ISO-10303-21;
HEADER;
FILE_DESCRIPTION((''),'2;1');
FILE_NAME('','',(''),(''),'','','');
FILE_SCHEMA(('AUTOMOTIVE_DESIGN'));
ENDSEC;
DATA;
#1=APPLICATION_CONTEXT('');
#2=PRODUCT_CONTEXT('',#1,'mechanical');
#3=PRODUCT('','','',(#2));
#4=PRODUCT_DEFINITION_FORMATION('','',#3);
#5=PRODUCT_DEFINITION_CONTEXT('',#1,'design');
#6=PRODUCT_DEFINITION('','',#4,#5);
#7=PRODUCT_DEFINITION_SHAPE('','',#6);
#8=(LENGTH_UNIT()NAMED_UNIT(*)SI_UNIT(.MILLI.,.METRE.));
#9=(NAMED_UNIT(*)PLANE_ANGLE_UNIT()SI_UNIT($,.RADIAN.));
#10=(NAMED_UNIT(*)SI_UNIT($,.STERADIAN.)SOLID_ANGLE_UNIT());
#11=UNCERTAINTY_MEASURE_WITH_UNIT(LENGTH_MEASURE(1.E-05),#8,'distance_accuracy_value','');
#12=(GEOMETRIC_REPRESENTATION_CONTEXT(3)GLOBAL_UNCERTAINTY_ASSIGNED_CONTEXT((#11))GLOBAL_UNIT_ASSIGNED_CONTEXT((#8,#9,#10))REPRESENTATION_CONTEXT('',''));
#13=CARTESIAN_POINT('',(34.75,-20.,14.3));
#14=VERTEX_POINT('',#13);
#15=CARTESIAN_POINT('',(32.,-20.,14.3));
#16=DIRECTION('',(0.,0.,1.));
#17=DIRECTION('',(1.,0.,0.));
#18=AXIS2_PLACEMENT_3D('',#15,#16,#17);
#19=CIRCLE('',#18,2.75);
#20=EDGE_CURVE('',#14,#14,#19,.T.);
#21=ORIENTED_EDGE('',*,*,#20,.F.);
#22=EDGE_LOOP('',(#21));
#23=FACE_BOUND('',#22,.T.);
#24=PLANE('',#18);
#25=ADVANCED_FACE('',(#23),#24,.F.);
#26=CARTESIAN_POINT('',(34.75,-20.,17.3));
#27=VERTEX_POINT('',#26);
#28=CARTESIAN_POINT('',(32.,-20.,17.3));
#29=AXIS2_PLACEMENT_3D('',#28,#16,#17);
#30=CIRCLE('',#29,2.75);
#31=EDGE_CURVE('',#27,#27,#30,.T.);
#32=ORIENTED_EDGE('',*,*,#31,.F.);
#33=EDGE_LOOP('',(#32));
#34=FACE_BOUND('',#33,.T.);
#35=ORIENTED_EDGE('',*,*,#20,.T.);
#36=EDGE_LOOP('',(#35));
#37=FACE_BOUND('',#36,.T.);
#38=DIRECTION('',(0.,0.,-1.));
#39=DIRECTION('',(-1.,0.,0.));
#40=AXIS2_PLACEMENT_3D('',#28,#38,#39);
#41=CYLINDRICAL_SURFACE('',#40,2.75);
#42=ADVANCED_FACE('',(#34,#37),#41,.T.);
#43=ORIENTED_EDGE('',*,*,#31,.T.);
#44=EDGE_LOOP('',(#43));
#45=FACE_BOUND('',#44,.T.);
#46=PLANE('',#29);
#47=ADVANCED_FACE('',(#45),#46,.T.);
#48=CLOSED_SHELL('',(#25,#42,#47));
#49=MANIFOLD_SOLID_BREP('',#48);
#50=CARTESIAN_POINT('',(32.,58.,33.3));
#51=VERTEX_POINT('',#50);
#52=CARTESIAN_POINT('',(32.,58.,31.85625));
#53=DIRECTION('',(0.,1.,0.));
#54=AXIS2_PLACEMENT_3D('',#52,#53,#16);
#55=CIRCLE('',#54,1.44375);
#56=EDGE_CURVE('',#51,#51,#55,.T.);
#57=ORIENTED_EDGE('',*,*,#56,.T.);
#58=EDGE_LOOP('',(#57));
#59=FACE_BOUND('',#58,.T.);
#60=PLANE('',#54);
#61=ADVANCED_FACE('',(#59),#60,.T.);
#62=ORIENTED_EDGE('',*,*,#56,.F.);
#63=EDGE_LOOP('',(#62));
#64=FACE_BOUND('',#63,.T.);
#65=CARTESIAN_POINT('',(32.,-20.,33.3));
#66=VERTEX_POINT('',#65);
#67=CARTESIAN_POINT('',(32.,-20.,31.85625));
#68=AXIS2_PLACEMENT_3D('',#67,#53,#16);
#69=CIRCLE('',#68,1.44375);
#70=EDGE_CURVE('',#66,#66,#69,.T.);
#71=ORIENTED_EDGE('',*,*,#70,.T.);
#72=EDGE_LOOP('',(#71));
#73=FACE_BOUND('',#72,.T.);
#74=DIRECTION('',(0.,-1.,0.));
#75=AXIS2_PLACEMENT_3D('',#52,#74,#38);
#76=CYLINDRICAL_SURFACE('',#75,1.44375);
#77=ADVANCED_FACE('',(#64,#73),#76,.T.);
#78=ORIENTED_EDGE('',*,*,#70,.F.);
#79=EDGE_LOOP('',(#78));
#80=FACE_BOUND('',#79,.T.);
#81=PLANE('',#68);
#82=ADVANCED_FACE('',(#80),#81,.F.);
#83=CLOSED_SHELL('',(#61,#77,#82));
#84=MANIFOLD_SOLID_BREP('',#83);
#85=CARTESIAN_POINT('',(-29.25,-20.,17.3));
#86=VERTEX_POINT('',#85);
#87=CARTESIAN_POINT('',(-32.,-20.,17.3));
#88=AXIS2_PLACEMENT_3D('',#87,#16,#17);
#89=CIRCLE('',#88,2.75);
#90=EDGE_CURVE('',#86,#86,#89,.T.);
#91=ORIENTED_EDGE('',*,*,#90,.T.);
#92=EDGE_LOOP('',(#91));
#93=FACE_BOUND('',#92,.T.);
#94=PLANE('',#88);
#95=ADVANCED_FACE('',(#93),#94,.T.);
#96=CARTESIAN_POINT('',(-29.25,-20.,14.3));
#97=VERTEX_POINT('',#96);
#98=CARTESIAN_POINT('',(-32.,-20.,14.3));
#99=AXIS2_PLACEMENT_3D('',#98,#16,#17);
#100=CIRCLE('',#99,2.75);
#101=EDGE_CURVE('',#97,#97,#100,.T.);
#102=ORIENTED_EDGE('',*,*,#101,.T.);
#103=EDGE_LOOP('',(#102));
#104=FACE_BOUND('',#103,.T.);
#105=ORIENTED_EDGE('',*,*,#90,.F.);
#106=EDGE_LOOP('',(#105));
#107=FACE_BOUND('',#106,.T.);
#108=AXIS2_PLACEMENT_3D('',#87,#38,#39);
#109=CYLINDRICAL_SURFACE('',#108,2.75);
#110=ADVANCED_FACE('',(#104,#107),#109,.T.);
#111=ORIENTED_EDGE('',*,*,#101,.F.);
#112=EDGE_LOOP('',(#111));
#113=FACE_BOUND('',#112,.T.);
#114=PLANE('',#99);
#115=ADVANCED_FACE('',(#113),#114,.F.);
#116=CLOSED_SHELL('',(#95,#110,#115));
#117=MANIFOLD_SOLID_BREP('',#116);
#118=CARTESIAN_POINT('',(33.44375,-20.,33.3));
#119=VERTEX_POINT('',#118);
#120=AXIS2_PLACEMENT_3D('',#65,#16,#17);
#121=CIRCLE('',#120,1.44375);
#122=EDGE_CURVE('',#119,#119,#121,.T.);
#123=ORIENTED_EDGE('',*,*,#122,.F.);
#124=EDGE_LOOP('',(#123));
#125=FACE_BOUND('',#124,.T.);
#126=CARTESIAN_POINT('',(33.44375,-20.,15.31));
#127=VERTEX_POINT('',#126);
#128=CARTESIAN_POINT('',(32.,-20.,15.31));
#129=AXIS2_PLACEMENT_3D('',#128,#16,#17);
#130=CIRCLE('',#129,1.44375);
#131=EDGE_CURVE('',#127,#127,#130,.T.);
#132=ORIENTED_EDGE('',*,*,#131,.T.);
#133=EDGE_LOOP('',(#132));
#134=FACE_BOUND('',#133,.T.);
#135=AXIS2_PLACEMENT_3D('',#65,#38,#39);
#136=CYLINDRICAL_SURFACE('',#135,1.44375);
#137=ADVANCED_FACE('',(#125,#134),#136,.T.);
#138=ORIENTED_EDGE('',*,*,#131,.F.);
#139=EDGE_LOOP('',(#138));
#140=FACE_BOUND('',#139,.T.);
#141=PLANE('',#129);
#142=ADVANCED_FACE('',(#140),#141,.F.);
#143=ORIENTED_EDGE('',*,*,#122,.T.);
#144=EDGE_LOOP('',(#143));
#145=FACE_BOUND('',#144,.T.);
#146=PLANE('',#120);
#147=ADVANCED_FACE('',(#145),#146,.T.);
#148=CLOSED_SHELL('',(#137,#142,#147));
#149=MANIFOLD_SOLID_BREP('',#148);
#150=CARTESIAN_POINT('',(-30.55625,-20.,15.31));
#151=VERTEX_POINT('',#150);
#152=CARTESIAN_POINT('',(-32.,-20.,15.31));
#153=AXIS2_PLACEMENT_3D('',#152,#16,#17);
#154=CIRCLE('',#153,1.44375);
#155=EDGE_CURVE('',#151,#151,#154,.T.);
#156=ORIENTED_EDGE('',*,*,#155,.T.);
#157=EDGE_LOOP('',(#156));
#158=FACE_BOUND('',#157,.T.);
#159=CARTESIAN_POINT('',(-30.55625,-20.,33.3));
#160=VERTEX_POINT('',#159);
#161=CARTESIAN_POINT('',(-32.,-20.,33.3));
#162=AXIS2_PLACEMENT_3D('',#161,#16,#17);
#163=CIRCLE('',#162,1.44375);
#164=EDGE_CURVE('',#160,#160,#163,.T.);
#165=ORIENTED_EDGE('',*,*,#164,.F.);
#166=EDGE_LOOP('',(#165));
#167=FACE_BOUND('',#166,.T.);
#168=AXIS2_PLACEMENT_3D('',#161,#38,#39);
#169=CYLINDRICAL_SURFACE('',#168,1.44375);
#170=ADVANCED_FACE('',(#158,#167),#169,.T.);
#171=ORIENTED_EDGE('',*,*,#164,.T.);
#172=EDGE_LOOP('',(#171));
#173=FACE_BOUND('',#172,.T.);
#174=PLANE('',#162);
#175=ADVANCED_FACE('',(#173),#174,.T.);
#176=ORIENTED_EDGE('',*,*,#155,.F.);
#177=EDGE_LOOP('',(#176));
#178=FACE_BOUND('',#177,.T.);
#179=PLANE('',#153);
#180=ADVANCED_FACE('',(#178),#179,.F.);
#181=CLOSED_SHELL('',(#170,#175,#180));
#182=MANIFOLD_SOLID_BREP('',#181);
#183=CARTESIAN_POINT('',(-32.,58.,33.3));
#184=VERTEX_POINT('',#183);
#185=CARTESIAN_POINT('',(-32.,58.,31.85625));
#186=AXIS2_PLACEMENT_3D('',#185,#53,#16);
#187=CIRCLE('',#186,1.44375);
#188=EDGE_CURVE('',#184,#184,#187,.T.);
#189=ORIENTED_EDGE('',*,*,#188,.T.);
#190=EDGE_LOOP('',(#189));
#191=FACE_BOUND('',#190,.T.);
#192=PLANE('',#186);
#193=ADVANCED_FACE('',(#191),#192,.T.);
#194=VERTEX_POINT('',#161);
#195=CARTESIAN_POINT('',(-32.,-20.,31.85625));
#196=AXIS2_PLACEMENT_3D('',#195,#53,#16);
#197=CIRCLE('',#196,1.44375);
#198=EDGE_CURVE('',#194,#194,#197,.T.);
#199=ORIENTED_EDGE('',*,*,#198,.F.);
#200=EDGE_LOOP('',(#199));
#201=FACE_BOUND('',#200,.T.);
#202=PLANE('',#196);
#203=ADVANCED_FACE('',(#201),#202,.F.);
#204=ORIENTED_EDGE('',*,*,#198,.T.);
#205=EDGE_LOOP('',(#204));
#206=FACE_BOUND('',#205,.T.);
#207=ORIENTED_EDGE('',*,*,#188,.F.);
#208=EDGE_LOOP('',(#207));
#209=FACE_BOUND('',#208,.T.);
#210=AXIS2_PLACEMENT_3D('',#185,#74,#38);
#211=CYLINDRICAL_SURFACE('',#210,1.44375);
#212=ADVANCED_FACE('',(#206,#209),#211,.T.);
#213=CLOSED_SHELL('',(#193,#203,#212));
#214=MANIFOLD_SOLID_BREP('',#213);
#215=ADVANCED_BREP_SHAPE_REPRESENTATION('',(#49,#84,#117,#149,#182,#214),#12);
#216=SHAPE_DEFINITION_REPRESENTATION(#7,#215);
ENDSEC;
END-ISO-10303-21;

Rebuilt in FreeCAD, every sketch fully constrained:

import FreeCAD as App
import Part
import Sketcher
Q = App.Units.Quantity

doc = App.newDocument("Part")
body = doc.addObject("PartDesign::Body", "Body")

# Sketch on XY plane
sketch1 = doc.addObject("Sketcher::SketchObject", "Sketch")
body.addObject(sketch1)
sketch1.AttachmentSupport = (doc.XY_Plane, [""])
sketch1.MapMode = "FlatFace"
sketch1.AttachmentOffset = App.Placement(App.Vector(0, 0, 14.3), App.Rotation())
sketch1.addGeometry(Part.Circle(App.Vector(-32, -20, 0), App.Vector(0, 0, 1), 2.8), False)
sketch1.addConstraint([
    Sketcher.Constraint("Diameter", 0, Q("5.5 mm")),
    Sketcher.Constraint("DistanceX", 0, 3, -1, 1, Q("32 mm")),
    Sketcher.Constraint("DistanceY", 0, 3, -1, 1, Q("20 mm")),
])
pad1 = doc.addObject("PartDesign::Pad", "Pad")
body.addObject(pad1)
pad1.Profile = sketch1
pad1.Length = 3
body2 = doc.addObject("PartDesign::Body", "Body001")

# Sketch on XY plane
sketch2 = doc.addObject("Sketcher::SketchObject", "Sketch001")
body2.addObject(sketch2)
sketch2.AttachmentSupport = (doc.getObject("XY_Plane001"), [""])
sketch2.MapMode = "FlatFace"
sketch2.AttachmentOffset = App.Placement(App.Vector(0, 0, 15.31), App.Rotation())
sketch2.addGeometry(Part.Circle(App.Vector(-32, -20, 0), App.Vector(0, 0, 1), 1.4), False)
sketch2.addConstraint([
    Sketcher.Constraint("DistanceX", 0, 3, -1, 1, Q("32 mm")),
    Sketcher.Constraint("DistanceY", 0, 3, -1, 1, Q("20 mm")),
    Sketcher.Constraint("Diameter", 0, Q("2.8875 mm")),
])
pad2 = doc.addObject("PartDesign::Pad", "Pad001")
body2.addObject(pad2)
pad2.Profile = sketch2
pad2.Length = 17.99
body3 = doc.addObject("PartDesign::Body", "Body002")

# Sketch on XZ plane
sketch3 = doc.addObject("Sketcher::SketchObject", "Sketch002")
body3.addObject(sketch3)
sketch3.AttachmentSupport = (doc.getObject("XZ_Plane002"), [""])
sketch3.MapMode = "FlatFace"
sketch3.AttachmentOffset = App.Placement(App.Vector(0, 0, 20), App.Rotation())
sketch3.addGeometry(Part.Circle(App.Vector(-32, 31.9, 0), App.Vector(0, 0, 1), 1.4), False)
sketch3.addConstraint([
    Sketcher.Constraint("DistanceX", 0, 3, -1, 1, Q("32 mm")),
    Sketcher.Constraint("Diameter", 0, Q("2.8875 mm")),
    Sketcher.Constraint("DistanceY", -1, 1, 0, 3, Q("31.85625 mm")),
])
pad3 = doc.addObject("PartDesign::Pad", "Pad002")
body3.addObject(pad3)
pad3.Profile = sketch3
pad3.Length = 78
pad3.Reversed = True
body4 = doc.addObject("PartDesign::Body", "Body003")

# Sketch on XY plane
sketch4 = doc.addObject("Sketcher::SketchObject", "Sketch003")
body4.addObject(sketch4)
sketch4.AttachmentSupport = (doc.getObject("XY_Plane003"), [""])
sketch4.MapMode = "FlatFace"
sketch4.AttachmentOffset = App.Placement(App.Vector(0, 0, 14.3), App.Rotation())
sketch4.addGeometry(Part.Circle(App.Vector(32, -20, 0), App.Vector(0, 0, 1), 2.8), False)
sketch4.addConstraint([
    Sketcher.Constraint("Diameter", 0, Q("5.5 mm")),
    Sketcher.Constraint("DistanceX", -1, 1, 0, 3, Q("32 mm")),
    Sketcher.Constraint("DistanceY", 0, 3, -1, 1, Q("20 mm")),
])
pad4 = doc.addObject("PartDesign::Pad", "Pad003")
body4.addObject(pad4)
pad4.Profile = sketch4
pad4.Length = 3
body5 = doc.addObject("PartDesign::Body", "Body004")

# Sketch on XY plane
sketch5 = doc.addObject("Sketcher::SketchObject", "Sketch004")
body5.addObject(sketch5)
sketch5.AttachmentSupport = (doc.getObject("XY_Plane004"), [""])
sketch5.MapMode = "FlatFace"
sketch5.AttachmentOffset = App.Placement(App.Vector(0, 0, 15.31), App.Rotation())
sketch5.addGeometry(Part.Circle(App.Vector(32, -20, 0), App.Vector(0, 0, 1), 1.4), False)
sketch5.addConstraint([
    Sketcher.Constraint("DistanceX", -1, 1, 0, 3, Q("32 mm")),
    Sketcher.Constraint("DistanceY", 0, 3, -1, 1, Q("20 mm")),
    Sketcher.Constraint("Diameter", 0, Q("2.8875 mm")),
])
pad5 = doc.addObject("PartDesign::Pad", "Pad004")
body5.addObject(pad5)
pad5.Profile = sketch5
pad5.Length = 17.99
body6 = doc.addObject("PartDesign::Body", "Body005")

# Sketch on XZ plane
sketch6 = doc.addObject("Sketcher::SketchObject", "Sketch005")
body6.addObject(sketch6)
sketch6.AttachmentSupport = (doc.getObject("XZ_Plane005"), [""])
sketch6.MapMode = "FlatFace"
sketch6.AttachmentOffset = App.Placement(App.Vector(0, 0, 20), App.Rotation())
sketch6.addGeometry(Part.Circle(App.Vector(32, 31.9, 0), App.Vector(0, 0, 1), 1.4), False)
sketch6.addConstraint([
    Sketcher.Constraint("DistanceX", -1, 1, 0, 3, Q("32 mm")),
    Sketcher.Constraint("Diameter", 0, Q("2.8875 mm")),
    Sketcher.Constraint("DistanceY", -1, 1, 0, 3, Q("31.85625 mm")),
])
pad6 = doc.addObject("PartDesign::Pad", "Pad005")
body6.addObject(pad6)
pad6.Profile = sketch6
pad6.Length = 78
pad6.Reversed = True

doc.recompute()
